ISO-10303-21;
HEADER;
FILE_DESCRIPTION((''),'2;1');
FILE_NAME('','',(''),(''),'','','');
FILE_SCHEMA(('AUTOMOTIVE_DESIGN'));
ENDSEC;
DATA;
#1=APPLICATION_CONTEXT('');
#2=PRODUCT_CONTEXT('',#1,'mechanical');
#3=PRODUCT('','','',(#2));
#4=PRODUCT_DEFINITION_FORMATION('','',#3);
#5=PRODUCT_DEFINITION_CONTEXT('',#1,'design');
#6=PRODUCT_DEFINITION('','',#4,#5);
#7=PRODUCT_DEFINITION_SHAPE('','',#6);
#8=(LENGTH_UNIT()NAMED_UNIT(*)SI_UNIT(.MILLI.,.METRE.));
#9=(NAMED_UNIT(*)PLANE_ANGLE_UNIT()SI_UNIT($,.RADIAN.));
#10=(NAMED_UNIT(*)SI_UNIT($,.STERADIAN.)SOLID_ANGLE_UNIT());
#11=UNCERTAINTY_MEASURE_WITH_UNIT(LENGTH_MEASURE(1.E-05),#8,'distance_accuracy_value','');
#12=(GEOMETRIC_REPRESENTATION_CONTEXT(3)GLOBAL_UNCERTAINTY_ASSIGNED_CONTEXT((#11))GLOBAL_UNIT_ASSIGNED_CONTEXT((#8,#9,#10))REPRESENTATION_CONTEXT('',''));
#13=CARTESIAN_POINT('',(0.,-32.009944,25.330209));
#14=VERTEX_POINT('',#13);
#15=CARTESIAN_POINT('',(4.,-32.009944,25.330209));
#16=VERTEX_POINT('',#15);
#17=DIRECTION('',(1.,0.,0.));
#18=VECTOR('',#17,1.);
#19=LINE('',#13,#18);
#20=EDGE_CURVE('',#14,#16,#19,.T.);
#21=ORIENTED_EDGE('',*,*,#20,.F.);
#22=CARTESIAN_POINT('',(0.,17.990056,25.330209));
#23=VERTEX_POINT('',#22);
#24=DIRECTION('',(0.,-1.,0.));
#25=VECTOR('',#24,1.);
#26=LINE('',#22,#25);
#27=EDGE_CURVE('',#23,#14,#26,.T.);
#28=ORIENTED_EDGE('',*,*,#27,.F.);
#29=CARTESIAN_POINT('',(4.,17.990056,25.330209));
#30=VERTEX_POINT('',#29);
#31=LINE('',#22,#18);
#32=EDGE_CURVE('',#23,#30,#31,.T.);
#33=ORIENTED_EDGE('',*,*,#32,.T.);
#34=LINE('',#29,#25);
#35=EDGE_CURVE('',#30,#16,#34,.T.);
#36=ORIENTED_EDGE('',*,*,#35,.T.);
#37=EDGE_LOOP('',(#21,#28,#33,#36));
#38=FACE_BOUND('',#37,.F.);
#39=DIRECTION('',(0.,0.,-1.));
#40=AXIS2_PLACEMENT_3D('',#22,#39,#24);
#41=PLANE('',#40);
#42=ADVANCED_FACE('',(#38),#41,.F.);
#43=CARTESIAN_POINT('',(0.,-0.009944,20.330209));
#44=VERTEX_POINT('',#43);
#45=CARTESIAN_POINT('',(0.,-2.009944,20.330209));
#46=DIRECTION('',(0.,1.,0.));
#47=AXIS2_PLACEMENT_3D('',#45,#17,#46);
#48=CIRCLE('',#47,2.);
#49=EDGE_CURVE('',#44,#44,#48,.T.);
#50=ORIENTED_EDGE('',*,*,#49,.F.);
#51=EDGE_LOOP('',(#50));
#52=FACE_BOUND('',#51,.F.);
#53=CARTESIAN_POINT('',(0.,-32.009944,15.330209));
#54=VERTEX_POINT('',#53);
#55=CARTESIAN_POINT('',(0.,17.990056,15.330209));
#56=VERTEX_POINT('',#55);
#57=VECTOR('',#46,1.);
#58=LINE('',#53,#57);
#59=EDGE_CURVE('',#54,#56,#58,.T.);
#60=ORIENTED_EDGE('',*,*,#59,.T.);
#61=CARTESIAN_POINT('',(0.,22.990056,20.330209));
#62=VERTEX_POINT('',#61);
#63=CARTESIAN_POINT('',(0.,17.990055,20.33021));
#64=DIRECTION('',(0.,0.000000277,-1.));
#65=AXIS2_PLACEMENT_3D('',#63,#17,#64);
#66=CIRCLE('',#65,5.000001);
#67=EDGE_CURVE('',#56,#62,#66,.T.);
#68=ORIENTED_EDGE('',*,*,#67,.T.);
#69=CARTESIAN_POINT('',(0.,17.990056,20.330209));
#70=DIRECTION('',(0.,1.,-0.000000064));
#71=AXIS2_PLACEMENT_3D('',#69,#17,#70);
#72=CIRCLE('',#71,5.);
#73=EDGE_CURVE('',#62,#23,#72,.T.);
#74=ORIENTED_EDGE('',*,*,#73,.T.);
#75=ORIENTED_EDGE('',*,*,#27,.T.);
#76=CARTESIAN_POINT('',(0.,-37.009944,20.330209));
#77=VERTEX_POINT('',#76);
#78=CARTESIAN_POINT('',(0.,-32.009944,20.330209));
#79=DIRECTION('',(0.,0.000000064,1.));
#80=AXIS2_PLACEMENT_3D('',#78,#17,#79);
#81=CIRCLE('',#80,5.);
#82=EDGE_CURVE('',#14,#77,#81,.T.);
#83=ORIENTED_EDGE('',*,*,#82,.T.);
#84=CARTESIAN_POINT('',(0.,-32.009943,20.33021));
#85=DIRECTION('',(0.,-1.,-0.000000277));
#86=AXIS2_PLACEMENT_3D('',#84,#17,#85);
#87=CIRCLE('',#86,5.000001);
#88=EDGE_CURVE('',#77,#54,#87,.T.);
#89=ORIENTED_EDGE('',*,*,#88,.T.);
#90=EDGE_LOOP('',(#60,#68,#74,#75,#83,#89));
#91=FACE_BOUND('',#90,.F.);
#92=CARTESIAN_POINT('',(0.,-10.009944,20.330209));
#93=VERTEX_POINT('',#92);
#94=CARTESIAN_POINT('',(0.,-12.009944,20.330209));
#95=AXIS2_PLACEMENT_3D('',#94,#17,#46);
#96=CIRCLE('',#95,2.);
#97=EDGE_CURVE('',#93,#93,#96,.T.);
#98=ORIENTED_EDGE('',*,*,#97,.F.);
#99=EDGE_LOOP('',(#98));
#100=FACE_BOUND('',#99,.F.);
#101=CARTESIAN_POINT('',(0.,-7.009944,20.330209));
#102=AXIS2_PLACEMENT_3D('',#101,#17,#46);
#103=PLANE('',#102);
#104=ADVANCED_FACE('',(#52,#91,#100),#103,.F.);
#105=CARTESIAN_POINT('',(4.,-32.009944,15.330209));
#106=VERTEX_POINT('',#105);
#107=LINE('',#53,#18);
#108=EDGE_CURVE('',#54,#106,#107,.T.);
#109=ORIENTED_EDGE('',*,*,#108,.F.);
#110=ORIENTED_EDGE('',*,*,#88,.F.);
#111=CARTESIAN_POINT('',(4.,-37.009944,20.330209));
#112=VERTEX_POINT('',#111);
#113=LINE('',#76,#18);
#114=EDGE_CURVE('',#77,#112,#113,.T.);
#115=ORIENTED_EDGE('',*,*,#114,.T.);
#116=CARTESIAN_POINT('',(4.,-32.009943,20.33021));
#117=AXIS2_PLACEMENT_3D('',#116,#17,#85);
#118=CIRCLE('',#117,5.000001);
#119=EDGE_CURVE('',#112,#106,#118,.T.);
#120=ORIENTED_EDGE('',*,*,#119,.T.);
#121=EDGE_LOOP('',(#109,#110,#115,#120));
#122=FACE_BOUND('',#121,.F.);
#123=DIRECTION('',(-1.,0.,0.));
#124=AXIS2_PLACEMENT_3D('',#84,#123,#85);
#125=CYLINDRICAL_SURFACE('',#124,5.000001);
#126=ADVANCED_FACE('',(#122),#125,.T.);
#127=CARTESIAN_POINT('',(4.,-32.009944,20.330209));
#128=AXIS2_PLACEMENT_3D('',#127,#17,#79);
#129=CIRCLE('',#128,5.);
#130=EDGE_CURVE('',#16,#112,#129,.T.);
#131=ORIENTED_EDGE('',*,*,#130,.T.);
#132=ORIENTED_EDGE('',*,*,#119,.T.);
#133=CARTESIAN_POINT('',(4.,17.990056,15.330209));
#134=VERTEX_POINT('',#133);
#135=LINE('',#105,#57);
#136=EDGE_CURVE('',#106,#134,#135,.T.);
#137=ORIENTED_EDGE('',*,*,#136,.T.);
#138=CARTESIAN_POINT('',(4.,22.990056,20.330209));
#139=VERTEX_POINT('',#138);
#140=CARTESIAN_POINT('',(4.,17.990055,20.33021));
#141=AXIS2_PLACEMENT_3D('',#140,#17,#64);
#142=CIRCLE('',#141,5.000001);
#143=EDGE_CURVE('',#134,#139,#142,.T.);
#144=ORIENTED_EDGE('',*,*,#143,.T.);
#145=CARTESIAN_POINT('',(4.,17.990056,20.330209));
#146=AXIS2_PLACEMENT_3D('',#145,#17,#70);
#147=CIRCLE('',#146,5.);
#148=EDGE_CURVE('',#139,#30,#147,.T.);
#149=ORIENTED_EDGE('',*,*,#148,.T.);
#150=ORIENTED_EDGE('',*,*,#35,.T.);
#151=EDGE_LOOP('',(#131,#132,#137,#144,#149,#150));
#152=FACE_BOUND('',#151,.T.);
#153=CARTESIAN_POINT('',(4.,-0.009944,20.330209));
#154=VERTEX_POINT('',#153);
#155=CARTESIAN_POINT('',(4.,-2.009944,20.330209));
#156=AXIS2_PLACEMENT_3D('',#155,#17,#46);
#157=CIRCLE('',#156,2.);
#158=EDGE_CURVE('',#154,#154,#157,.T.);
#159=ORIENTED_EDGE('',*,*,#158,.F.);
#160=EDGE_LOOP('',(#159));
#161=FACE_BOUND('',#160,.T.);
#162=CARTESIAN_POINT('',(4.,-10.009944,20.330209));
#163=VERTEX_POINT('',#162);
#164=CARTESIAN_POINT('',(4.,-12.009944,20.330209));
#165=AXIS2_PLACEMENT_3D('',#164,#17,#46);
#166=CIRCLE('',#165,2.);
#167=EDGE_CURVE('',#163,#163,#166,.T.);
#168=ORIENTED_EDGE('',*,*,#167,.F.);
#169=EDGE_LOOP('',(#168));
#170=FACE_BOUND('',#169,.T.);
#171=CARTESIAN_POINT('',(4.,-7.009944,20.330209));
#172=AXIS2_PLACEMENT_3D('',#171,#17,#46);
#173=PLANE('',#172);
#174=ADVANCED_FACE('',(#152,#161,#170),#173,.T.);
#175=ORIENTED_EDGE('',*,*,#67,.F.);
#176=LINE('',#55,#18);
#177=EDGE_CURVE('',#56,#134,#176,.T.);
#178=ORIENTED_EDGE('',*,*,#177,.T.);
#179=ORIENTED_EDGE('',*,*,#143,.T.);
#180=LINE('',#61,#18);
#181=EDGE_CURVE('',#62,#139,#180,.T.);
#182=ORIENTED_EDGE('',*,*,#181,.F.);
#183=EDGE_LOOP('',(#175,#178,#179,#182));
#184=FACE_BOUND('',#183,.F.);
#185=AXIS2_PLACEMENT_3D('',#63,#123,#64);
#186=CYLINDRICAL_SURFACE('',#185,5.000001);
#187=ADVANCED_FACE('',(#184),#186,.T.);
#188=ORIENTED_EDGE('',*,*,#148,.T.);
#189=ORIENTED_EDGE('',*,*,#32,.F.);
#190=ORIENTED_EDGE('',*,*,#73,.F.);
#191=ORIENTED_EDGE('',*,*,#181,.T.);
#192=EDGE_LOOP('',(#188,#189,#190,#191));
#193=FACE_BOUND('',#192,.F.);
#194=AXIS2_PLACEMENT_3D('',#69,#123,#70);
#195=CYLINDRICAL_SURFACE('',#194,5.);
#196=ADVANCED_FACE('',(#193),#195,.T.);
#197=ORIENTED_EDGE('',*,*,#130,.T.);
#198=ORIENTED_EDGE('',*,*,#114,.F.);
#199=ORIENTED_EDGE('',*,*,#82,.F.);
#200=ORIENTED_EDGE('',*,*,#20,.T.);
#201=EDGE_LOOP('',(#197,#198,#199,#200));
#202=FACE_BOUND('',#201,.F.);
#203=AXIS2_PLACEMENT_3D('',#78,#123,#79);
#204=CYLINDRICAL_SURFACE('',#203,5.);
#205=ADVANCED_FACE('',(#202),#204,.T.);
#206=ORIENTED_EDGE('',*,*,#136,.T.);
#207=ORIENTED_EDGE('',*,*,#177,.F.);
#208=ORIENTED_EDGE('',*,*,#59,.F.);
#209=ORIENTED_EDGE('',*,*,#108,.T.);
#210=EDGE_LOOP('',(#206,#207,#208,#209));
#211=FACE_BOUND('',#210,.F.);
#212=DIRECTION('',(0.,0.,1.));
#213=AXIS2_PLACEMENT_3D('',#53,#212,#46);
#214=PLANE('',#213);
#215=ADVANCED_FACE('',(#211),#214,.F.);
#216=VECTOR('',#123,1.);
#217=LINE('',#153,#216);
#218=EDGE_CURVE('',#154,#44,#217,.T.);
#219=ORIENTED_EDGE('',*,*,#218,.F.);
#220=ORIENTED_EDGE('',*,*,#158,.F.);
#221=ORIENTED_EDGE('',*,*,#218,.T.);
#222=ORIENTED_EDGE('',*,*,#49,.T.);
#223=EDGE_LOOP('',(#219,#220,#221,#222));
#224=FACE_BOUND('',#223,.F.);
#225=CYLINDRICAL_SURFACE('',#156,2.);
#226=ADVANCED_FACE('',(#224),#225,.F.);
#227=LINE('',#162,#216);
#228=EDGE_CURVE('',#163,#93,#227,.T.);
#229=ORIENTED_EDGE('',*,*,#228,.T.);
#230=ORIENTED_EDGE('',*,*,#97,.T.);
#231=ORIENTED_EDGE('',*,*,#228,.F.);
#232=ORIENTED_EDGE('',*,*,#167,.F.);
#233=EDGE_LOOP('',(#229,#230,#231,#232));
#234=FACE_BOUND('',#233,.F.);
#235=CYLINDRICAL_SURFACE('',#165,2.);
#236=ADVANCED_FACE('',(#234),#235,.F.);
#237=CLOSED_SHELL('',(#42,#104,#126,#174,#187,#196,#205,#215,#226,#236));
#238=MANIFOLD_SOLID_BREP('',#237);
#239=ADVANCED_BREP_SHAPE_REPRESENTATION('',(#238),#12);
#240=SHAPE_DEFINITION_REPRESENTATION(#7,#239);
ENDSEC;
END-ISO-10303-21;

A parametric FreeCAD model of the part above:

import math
import FreeCAD as App
import Part
import Sketcher

V = App.Vector

doc = App.newDocument("Part")
body = doc.addObject("PartDesign::Body", "Body")

# Sketch on YZ plane
sketch1 = doc.addObject("Sketcher::SketchObject", "Sketch")
body.addObject(sketch1)
sketch1.AttachmentSupport = (doc.YZ_Plane, [""])
sketch1.MapMode = "FlatFace"
sketch1.addGeometry([
    Part.LineSegment(V(18, 25.3, 0), V(-32, 25.3, 0)),  # 0
    Part.ArcOfCircle(Part.Circle(V(-32, 20.3, 0), V(0, 0, 1), 5), math.radians(90), math.radians(180)),  # 1
    Part.ArcOfCircle(Part.Circle(V(-32, 20.3, 0), V(0, 0, 1), 5), math.radians(-180), math.radians(-90)),  # 2
    Part.LineSegment(V(-32, 15.3, 0), V(18, 15.3, 0)),  # 3
    Part.ArcOfCircle(Part.Circle(V(18, 20.3, 0), V(0, 0, 1), 5), math.radians(-90), math.radians(0)),  # 4
    Part.ArcOfCircle(Part.Circle(V(18, 20.3, 0), V(0, 0, 1), 5), math.radians(0), math.radians(90)),  # 5
], False)
sketch1.addConstraint([
    Sketcher.Constraint("Tangent", 0, 2, 1, 1),
    Sketcher.Constraint("Tangent", 1, 2, 2, 1),
    Sketcher.Constraint("Tangent", 2, 2, 3, 1),
    Sketcher.Constraint("Tangent", 3, 2, 4, 1),
    Sketcher.Constraint("Tangent", 4, 2, 5, 1),
    Sketcher.Constraint("Tangent", 5, 2, 0, 1),
    Sketcher.Constraint("Horizontal", 0),
    Sketcher.Constraint("Horizontal", 3),
    Sketcher.Constraint("Equal", 1, 2),
    Sketcher.Constraint("Equal", 2, 4),
    Sketcher.Constraint("Horizontal", 5, 3, 1, 2),
    Sketcher.Constraint("Horizontal", 1, 2, 4, 2),
    Sketcher.Constraint("Radius", 1, 5.0),
    Sketcher.Constraint("DistanceX", 0, 2, 0, 1, 50.0),
    Sketcher.Constraint("DistanceY", -1, 1, 1, 3, 20.330209),
    Sketcher.Constraint("DistanceX", 1, 3, -1, 1, 32.009944),
])
pad1 = doc.addObject("PartDesign::Pad", "Pad")
body.addObject(pad1)
pad1.Profile = sketch1
pad1.Length = 4

# Sketch on YZ plane
sketch2 = doc.addObject("Sketcher::SketchObject", "Sketch001")
body.addObject(sketch2)
sketch2.AttachmentSupport = (doc.YZ_Plane, [""])
sketch2.MapMode = "FlatFace"
sketch2.AttachmentOffset = App.Placement(V(0, 0, 4), App.Rotation())
sketch2.addGeometry([
    Part.Circle(V(-12, 20.3, 0), V(0, 0, 1), 2),
    Part.Circle(V(-2, 20.3, 0), V(0, 0, 1), 2),
], False)
sketch2.addConstraint([
    Sketcher.Constraint("Equal", 0, 1),
    Sketcher.Constraint("Horizontal", 0, 3, 1, 3),
    Sketcher.Constraint("Diameter", 0, 4.0),
    Sketcher.Constraint("DistanceX", 0, 3, 1, 3, 10.0),
    Sketcher.Constraint("DistanceY", -1, 1, 0, 3, 20.330209),
    Sketcher.Constraint("DistanceX", 0, 3, -1, 1, 12.009944),
])
pocket1 = doc.addObject("PartDesign::Pocket", "Pocket")
body.addObject(pocket1)
pocket1.Profile = sketch2
pocket1.Length = 25

doc.recompute()
